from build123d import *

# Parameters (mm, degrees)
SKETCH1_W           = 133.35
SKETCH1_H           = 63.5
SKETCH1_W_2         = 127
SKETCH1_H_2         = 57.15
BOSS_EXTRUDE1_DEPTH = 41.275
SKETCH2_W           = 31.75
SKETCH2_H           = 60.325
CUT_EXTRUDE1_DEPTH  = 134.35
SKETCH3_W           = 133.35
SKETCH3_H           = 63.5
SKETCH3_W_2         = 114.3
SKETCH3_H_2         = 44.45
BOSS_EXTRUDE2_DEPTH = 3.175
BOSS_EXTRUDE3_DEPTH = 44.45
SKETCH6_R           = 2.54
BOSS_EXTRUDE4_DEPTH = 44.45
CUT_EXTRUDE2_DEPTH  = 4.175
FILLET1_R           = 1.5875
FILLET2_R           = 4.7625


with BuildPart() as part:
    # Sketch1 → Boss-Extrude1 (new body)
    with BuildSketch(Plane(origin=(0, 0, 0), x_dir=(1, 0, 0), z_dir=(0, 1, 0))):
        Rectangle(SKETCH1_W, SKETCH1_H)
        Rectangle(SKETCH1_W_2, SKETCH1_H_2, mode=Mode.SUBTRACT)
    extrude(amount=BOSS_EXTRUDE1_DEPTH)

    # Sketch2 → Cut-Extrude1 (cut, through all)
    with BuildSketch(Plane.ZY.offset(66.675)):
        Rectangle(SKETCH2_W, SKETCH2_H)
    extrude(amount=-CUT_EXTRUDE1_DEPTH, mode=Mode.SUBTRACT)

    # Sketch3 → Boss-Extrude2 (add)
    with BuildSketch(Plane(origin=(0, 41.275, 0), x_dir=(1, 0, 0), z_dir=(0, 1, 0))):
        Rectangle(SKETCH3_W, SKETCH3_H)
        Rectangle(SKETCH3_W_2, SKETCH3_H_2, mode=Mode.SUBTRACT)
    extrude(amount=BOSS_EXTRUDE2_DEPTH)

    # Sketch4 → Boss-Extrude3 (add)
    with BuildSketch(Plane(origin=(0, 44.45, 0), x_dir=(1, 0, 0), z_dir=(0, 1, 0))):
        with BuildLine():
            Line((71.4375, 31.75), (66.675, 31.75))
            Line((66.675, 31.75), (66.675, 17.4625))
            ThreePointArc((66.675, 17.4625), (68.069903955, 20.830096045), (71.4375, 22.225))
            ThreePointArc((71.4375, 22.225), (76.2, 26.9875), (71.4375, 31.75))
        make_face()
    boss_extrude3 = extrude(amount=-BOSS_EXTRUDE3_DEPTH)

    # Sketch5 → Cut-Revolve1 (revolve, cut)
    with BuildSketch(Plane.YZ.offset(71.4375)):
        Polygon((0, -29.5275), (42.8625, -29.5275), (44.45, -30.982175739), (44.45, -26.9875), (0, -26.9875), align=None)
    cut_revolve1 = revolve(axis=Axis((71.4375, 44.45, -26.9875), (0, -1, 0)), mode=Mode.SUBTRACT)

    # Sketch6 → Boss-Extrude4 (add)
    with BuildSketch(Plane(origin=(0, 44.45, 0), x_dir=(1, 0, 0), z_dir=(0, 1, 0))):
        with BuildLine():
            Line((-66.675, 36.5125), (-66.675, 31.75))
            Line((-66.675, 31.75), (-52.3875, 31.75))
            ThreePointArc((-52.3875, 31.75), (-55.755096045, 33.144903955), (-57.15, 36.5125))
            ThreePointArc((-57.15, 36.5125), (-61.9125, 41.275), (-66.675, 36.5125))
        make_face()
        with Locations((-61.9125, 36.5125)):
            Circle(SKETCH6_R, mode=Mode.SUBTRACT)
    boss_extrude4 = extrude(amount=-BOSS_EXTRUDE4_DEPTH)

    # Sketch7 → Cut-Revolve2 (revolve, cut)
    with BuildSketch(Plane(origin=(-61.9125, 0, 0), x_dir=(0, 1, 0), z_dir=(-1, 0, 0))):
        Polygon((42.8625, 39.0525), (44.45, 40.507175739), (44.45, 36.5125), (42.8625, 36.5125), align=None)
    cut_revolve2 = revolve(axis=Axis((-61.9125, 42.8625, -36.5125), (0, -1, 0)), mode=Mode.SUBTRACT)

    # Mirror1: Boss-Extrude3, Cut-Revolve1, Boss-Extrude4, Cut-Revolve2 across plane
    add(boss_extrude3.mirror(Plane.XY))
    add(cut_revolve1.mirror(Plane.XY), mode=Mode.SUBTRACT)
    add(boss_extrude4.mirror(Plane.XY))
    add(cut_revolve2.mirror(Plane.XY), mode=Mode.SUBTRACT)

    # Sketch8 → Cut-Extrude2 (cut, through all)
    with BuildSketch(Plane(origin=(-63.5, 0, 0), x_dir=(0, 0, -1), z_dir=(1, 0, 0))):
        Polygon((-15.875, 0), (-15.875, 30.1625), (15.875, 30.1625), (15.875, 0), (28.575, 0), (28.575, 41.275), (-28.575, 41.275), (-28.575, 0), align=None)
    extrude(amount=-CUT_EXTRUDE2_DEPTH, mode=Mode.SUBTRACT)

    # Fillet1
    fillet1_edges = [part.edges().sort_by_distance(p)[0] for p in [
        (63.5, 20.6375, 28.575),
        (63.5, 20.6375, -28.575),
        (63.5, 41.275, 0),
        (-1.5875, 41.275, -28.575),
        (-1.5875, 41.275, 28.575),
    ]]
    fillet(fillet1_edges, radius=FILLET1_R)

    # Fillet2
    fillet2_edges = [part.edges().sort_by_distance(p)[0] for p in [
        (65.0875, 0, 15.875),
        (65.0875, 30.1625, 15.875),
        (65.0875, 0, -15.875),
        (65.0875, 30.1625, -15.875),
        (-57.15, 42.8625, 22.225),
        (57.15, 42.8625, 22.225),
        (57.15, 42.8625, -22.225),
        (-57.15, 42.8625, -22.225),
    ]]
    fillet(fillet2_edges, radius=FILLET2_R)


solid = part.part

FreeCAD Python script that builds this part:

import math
import FreeCAD as App
import Part
import Sketcher
from FreeCAD import Vector
Q = App.Units.Quantity


def edges_at(feature, points):
    """Names of the edges that pass closest to the given points."""
    edges = feature.Shape.Edges
    near = lambda p: min(range(len(edges)), key=lambda i: edges[i].distToShape(Part.Vertex(*p))[0])
    return sorted({f"Edge{near(p) + 1}" for p in points})

doc = App.newDocument("Part")
params = doc.addObject("Spreadsheet::Sheet", "Params")
for row, (alias, value) in enumerate([
    ("sketch1_width", "5 in"),
    ("sketch1_height", "2.5 in"),
    ("sketch1_width2", "5.25 in"),
    ("sketch1_height2", "2.25 in"),
    ("pad1_length", "1.625 in"),
    ("sketch2_height", "1.25 in"),
    ("sketch2_width", "2.375 in"),
    ("sketch3_width", "4.5 in"),
    ("sketch3_height", "2.5 in"),
    ("sketch3_width2", "5.25 in"),
    ("sketch3_height2", "1.75 in"),
    ("pad2_length", "0.125 in"),
    ("sketch4_radius", "0.1875 in"),
    ("pad3_length", "1.75 in"),
    ("sketch5_height", "0.1 in"),
    ("sketch5_width", "1.75 in"),
    ("sketch5_width2", "1.6875 in"),
    ("groove_angle", "360 deg"),
    ("sketch6_diameter", "0.2 in"),
    ("sketch6_radius", "0.1875 in"),
    ("pad4_length", "1.75 in"),
    ("sketch7_height", "0.1 in"),
    ("sketch7_width", "0.0625 in"),
    ("groove2_angle", "360 deg"),
    ("sketch8_height", "0.5 in"),
    ("sketch8_height2", "1.25 in"),
    ("sketch8_width", "1.1875 in"),
    ("sketch8_width2", "1.625 in"),
    ("fillet_radius", "0.0625 in"),
    ("fillet2_radius", "0.1875 in"),
], start=1):
    params.set(f"A{row}", alias)
    params.set(f"B{row}", "=" + value)
    params.setAlias(f"B{row}", alias)

body = doc.addObject("PartDesign::Body", "Body")

sketch1 = body.newObject("Sketcher::SketchObject", "Sketch")
sketch1.AttachmentSupport = (doc.getObject("XZ_Plane"), [""])
sketch1.MapMode = "FlatFace"
sketch1.addGeometry([
    Part.LineSegment(Vector(-66.675, -31.75, 0), Vector(-66.675, 31.75, 0)),
    Part.LineSegment(Vector(-66.675, 31.75, 0), Vector(66.675, 31.75, 0)),
    Part.LineSegment(Vector(66.675, 31.75, 0), Vector(66.675, -31.75, 0)),
    Part.LineSegment(Vector(66.675, -31.75, 0), Vector(-66.675, -31.75, 0)),
    Part.LineSegment(Vector(63.5, 28.575, 0), Vector(-63.5, 28.575, 0)),
    Part.LineSegment(Vector(-63.5, 28.575, 0), Vector(-63.5, -28.575, 0)),
    Part.LineSegment(Vector(-63.5, -28.575, 0), Vector(63.5, -28.575, 0)),
    Part.LineSegment(Vector(63.5, -28.575, 0), Vector(63.5, 28.575, 0)),
], False)
sketch1.addConstraint([
    Sketcher.Constraint("Coincident", 0, 2, 1, 1),
    Sketcher.Constraint("Coincident", 1, 2, 2, 1),
    Sketcher.Constraint("Coincident", 2, 2, 3, 1),
    Sketcher.Constraint("Coincident", 3, 2, 0, 1),
    Sketcher.Constraint("Coincident", 4, 2, 5, 1),
    Sketcher.Constraint("Coincident", 5, 2, 6, 1),
    Sketcher.Constraint("Coincident", 6, 2, 7, 1),
    Sketcher.Constraint("Coincident", 7, 2, 4, 1),
    Sketcher.Constraint("Vertical", 0),
    Sketcher.Constraint("Horizontal", 1),
    Sketcher.Constraint("Vertical", 2),
    Sketcher.Constraint("Horizontal", 3),
    Sketcher.Constraint("Horizontal", 4),
    Sketcher.Constraint("Vertical", 5),
    Sketcher.Constraint("Horizontal", 6),
    Sketcher.Constraint("Vertical", 7),
    Sketcher.Constraint("Symmetric", 0, 2, 2, 2, -1, 1),
    Sketcher.Constraint("Symmetric", 4, 2, 6, 2, -1, 1),
    Sketcher.Constraint("DistanceX", 4, 2, 4, 1, Q("5 in")),
    Sketcher.Constraint("DistanceY", 0, 1, 0, 2, Q("2.5 in")),
    Sketcher.Constraint("DistanceX", 1, 1, 1, 2, Q("5.25 in")),
    Sketcher.Constraint("DistanceY", 5, 2, 5, 1, Q("2.25 in")),
])
sketch1.setExpression("Constraints[18]", "Params.sketch1_width")
sketch1.setExpression("Constraints[19]", "Params.sketch1_height")
sketch1.setExpression("Constraints[20]", "Params.sketch1_width2")
sketch1.setExpression("Constraints[21]", "Params.sketch1_height2")
pad1 = body.newObject("PartDesign::Pad", "Pad")
pad1.Profile = sketch1
pad1.setExpression("Length", "Params.pad1_length")
pad1.Reversed = True

sketch2 = body.newObject("Sketcher::SketchObject", "Sketch001")
sketch2.AttachmentSupport = (doc.getObject("YZ_Plane"), [""])
sketch2.MapMode = "FlatFace"
sketch2.AttachmentOffset = App.Placement(Vector(0, 0, -2.625 * 25.4), App.Rotation())
sketch2.addGeometry([
    Part.LineSegment(Vector(30.1625, -15.875, 0), Vector(-30.1625, -15.875, 0)),
    Part.LineSegment(Vector(-30.1625, -15.875, 0), Vector(-30.1625, 15.875, 0)),
    Part.LineSegment(Vector(-30.1625, 15.875, 0), Vector(30.1625, 15.875, 0)),
    Part.LineSegment(Vector(30.1625, 15.875, 0), Vector(30.1625, -15.875, 0)),
], False)
sketch2.addConstraint([
    Sketcher.Constraint("Coincident", 0, 2, 1, 1),
    Sketcher.Constraint("Coincident", 1, 2, 2, 1),
    Sketcher.Constraint("Coincident", 2, 2, 3, 1),
    Sketcher.Constraint("Coincident", 3, 2, 0, 1),
    Sketcher.Constraint("Horizontal", 0),
    Sketcher.Constraint("Vertical", 1),
    Sketcher.Constraint("Horizontal", 2),
    Sketcher.Constraint("Vertical", 3),
    Sketcher.Constraint("Symmetric", 0, 2, 2, 2, -1, 1),
    Sketcher.Constraint("DistanceY", 1, 1, 1, 2, Q("1.25 in")),
    Sketcher.Constraint("DistanceX", 0, 2, 0, 1, Q("2.375 in")),
])
sketch2.setExpression("Constraints[9]", "Params.sketch2_height")
sketch2.setExpression("Constraints[10]", "Params.sketch2_width")
pocket1 = body.newObject("PartDesign::Pocket", "Pocket")
pocket1.Profile = sketch2
pocket1.Type = "ThroughAll"
pocket1.Reversed = True

sketch3 = body.newObject("Sketcher::SketchObject", "Sketch002")
sketch3.AttachmentSupport = (doc.getObject("XZ_Plane"), [""])
sketch3.MapMode = "FlatFace"
sketch3.AttachmentOffset = App.Placement(Vector(0, 0, -1.625 * 25.4), App.Rotation())
sketch3.addGeometry([
    Part.LineSegment(Vector(-66.675, -31.75, 0), Vector(-66.675, 31.75, 0)),
    Part.LineSegment(Vector(-66.675, 31.75, 0), Vector(66.675, 31.75, 0)),
    Part.LineSegment(Vector(66.675, 31.75, 0), Vector(66.675, -31.75, 0)),
    Part.LineSegment(Vector(66.675, -31.75, 0), Vector(-66.675, -31.75, 0)),
    Part.LineSegment(Vector(57.15, 22.225, 0), Vector(-57.15, 22.225, 0)),
    Part.LineSegment(Vector(-57.15, 22.225, 0), Vector(-57.15, -22.225, 0)),
    Part.LineSegment(Vector(-57.15, -22.225, 0), Vector(57.15, -22.225, 0)),
    Part.LineSegment(Vector(57.15, -22.225, 0), Vector(57.15, 22.225, 0)),
], False)
sketch3.addConstraint([
    Sketcher.Constraint("Coincident", 0, 2, 1, 1),
    Sketcher.Constraint("Coincident", 1, 2, 2, 1),
    Sketcher.Constraint("Coincident", 2, 2, 3, 1),
    Sketcher.Constraint("Coincident", 3, 2, 0, 1),
    Sketcher.Constraint("Coincident", 4, 2, 5, 1),
    Sketcher.Constraint("Coincident", 5, 2, 6, 1),
    Sketcher.Constraint("Coincident", 6, 2, 7, 1),
    Sketcher.Constraint("Coincident", 7, 2, 4, 1),
    Sketcher.Constraint("Vertical", 0),
    Sketcher.Constraint("Horizontal", 1),
    Sketcher.Constraint("Vertical", 2),
    Sketcher.Constraint("Horizontal", 3),
    Sketcher.Constraint("Horizontal", 4),
    Sketcher.Constraint("Vertical", 5),
    Sketcher.Constraint("Horizontal", 6),
    Sketcher.Constraint("Vertical", 7),
    Sketcher.Constraint("Symmetric", 0, 2, 2, 2, -1, 1),
    Sketcher.Constraint("Symmetric", 4, 2, 6, 2, -1, 1),
    Sketcher.Constraint("DistanceX", 4, 2, 4, 1, Q("4.5 in")),
    Sketcher.Constraint("DistanceY", 0, 1, 0, 2, Q("2.5 in")),
    Sketcher.Constraint("DistanceX", 1, 1, 1, 2, Q("5.25 in")),
    Sketcher.Constraint("DistanceY", 5, 2, 5, 1, Q("1.75 in")),
])
sketch3.setExpression("Constraints[18]", "Params.sketch3_width")
sketch3.setExpression("Constraints[19]", "Params.sketch3_height")
sketch3.setExpression("Constraints[20]", "Params.sketch3_width2")
sketch3.setExpression("Constraints[21]", "Params.sketch3_height2")
pad2 = body.newObject("PartDesign::Pad", "Pad001")
pad2.Profile = sketch3
pad2.setExpression("Length", "Params.pad2_length")
pad2.Reversed = True

sketch4 = body.newObject("Sketcher::SketchObject", "Sketch003")
sketch4.AttachmentSupport = (doc.getObject("XZ_Plane"), [""])
sketch4.MapMode = "FlatFace"
sketch4.AttachmentOffset = App.Placement(Vector(0, 0, -1.75 * 25.4), App.Rotation())
sketch4.addGeometry([
    Part.LineSegment(Vector(71.4375, -31.75, 0), Vector(66.675, -31.75, 0)),
    Part.LineSegment(Vector(66.675, -31.75, 0), Vector(66.675, -17.4625, 0)),
    Part.ArcOfCircle(Part.Circle(Vector(71.4375, -17.4625, 0), Vector(0, 0, 1), 4.7625), math.radians(-180), math.radians(-90)),
    Part.ArcOfCircle(Part.Circle(Vector(71.4375, -26.9875, 0), Vector(0, 0, 1), 4.7625), math.radians(-90), math.radians(90)),
], False)
sketch4.addConstraint([
    Sketcher.Constraint("Coincident", 0, 2, 1, 1),
    Sketcher.Constraint("Tangent", 1, 2, 2, 1),
    Sketcher.Constraint("Tangent", 2, 2, 3, 2),
    Sketcher.Constraint("Tangent", 3, 1, 0, 1),
    Sketcher.Constraint("Horizontal", 0),
    Sketcher.Constraint("Vertical", 1),
    Sketcher.Constraint("Equal", 2, 3),
    Sketcher.Constraint("Vertical", 2, 3, 3, 3),
    Sketcher.Constraint("Radius", 2, Q("0.1875 in")),
    Sketcher.Constraint("DistanceY", 0, 2, -1, 1, Q("1.25 in")),
    Sketcher.Constraint("DistanceX", -1, 1, 2, 3, Q("2.8125 in")),
])
sketch4.setExpression("Constraints[8]", "Params.sketch4_radius")
pad3 = body.newObject("PartDesign::Pad", "Pad002")
pad3.Profile = sketch4
pad3.setExpression("Length", "Params.pad3_length")

sketch5 = body.newObject("Sketcher::SketchObject", "Sketch004")
sketch5.AttachmentSupport = (doc.getObject("YZ_Plane"), [""])
sketch5.MapMode = "FlatFace"
sketch5.AttachmentOffset = App.Placement(Vector(0, 0, 2.8125 * 25.4), App.Rotation())
sketch5.addGeometry([
    Part.LineSegment(Vector(0, -29.5275, 0), Vector(42.8625, -29.5275, 0)),
    Part.LineSegment(Vector(42.8625, -29.5275, 0), Vector(44.45, -30.982176, 0)),
    Part.LineSegment(Vector(44.45, -30.982176, 0), Vector(44.45, -26.9875, 0)),
    Part.LineSegment(Vector(44.45, -26.9875, 0), Vector(0, -26.9875, 0)),
    Part.LineSegment(Vector(0, -26.9875, 0), Vector(0, -29.5275, 0)),
], False)
sketch5.addGeometry(Part.LineSegment(Vector(44.45, -26.9875, 0), Vector(0, -26.9875, 0)), True)
sketch5.addConstraint([
    Sketcher.Constraint("Coincident", 0, 2, 1, 1),
    Sketcher.Constraint("Coincident", 1, 2, 2, 1),
    Sketcher.Constraint("Coincident", 2, 2, 3, 1),
    Sketcher.Constraint("Coincident", 3, 2, 4, 1),
    Sketcher.Constraint("Coincident", 4, 2, 0, 1),
    Sketcher.Constraint("Horizontal", 0),
    Sketcher.Constraint("Vertical", 2),
    Sketcher.Constraint("Horizontal", 3),
    Sketcher.Constraint("Vertical", 4),
    Sketcher.Constraint("Horizontal", 5),
    Sketcher.Constraint("Coincident", 5, 1, 2, 2),
    Sketcher.Constraint("PointOnObject", 3, 2, -2),
    Sketcher.Constraint("PointOnObject", 5, 2, -2),
    Sketcher.Constraint("DistanceY", 4, 2, 4, 1, Q("0.1 in")),
    Sketcher.Constraint("DistanceX", 3, 2, 3, 1, Q("1.75 in")),
    Sketcher.Constraint("Angle", 1, Q("-42.5 deg")),
    Sketcher.Constraint("DistanceX", 0, 1, 0, 2, Q("1.6875 in")),
    Sketcher.Constraint("DistanceY", 2, 2, -1, 1, Q("1.0625 in")),
])
sketch5.setExpression("Constraints[13]", "Params.sketch5_height")
sketch5.setExpression("Constraints[14]", "Params.sketch5_width")
sketch5.setExpression("Constraints[16]", "Params.sketch5_width2")
groove = body.newObject("PartDesign::Groove", "Groove")
groove.Profile = sketch5
groove.ReferenceAxis = (sketch5, ["Axis0"])
groove.setExpression("Angle", "Params.groove_angle")

sketch6 = body.newObject("Sketcher::SketchObject", "Sketch005")
sketch6.AttachmentSupport = (doc.getObject("XZ_Plane"), [""])
sketch6.MapMode = "FlatFace"
sketch6.AttachmentOffset = App.Placement(Vector(0, 0, -1.75 * 25.4), App.Rotation())
sketch6.addGeometry([
    Part.LineSegment(Vector(-66.675, -36.5125, 0), Vector(-66.675, -31.75, 0)),
    Part.LineSegment(Vector(-66.675, -31.75, 0), Vector(-52.3875, -31.75, 0)),
    Part.ArcOfCircle(Part.Circle(Vector(-52.3875, -36.5125, 0), Vector(0, 0, 1), 4.7625), math.radians(90), math.radians(180)),
    Part.ArcOfCircle(Part.Circle(Vector(-61.9125, -36.5125, 0), Vector(0, 0, 1), 4.7625), math.radians(180), math.radians(360)),
    Part.Circle(Vector(-61.9125, -36.5125, 0), Vector(0, 0, 1), 2.54),
], False)
sketch6.addConstraint([
    Sketcher.Constraint("Coincident", 0, 2, 1, 1),
    Sketcher.Constraint("Tangent", 1, 2, 2, 1),
    Sketcher.Constraint("Tangent", 2, 2, 3, 2),
    Sketcher.Constraint("Tangent", 3, 1, 0, 1),
    Sketcher.Constraint("Vertical", 0),
    Sketcher.Constraint("Horizontal", 1),
    Sketcher.Constraint("Coincident", 4, 3, 3, 3),
    Sketcher.Constraint("Equal", 2, 3),
    Sketcher.Constraint("Horizontal", 2, 3, 3, 3),
    Sketcher.Constraint("Diameter", 4, Q("0.2 in")),
    Sketcher.Constraint("Radius", 2, Q("0.1875 in")),
    Sketcher.Constraint("DistanceY", 0, 2, -1, 1, Q("1.25 in")),
    Sketcher.Constraint("DistanceX", 2, 2, -1, 1, Q("2.25 in")),
])
sketch6.setExpression("Constraints[9]", "Params.sketch6_diameter")
sketch6.setExpression("Constraints[10]", "Params.sketch6_radius")
pad4 = body.newObject("PartDesign::Pad", "Pad003")
pad4.Profile = sketch6
pad4.setExpression("Length", "Params.pad4_length")

sketch7 = body.newObject("Sketcher::SketchObject", "Sketch006")
sketch7.AttachmentSupport = (doc.getObject("YZ_Plane"), [""])
sketch7.MapMode = "FlatFace"
sketch7.AttachmentOffset = App.Placement(Vector(0, 0, -2.4375 * 25.4), App.Rotation())
sketch7.addGeometry([
    Part.LineSegment(Vector(44.45, -40.507176, 0), Vector(42.8625, -39.0525, 0)),
    Part.LineSegment(Vector(42.8625, -39.0525, 0), Vector(42.8625, -36.5125, 0)),
    Part.LineSegment(Vector(42.8625, -36.5125, 0), Vector(44.45, -36.5125, 0)),
    Part.LineSegment(Vector(44.45, -36.5125, 0), Vector(44.45, -40.507176, 0)),
], False)
sketch7.addGeometry(Part.LineSegment(Vector(44.45, -36.5125, 0), Vector(42.8625, -36.5125, 0)), True)
sketch7.addConstraint([
    Sketcher.Constraint("Coincident", 0, 2, 1, 1),
    Sketcher.Constraint("Coincident", 1, 2, 2, 1),
    Sketcher.Constraint("Coincident", 2, 2, 3, 1),
    Sketcher.Constraint("Coincident", 3, 2, 0, 1),
    Sketcher.Constraint("Vertical", 1),
    Sketcher.Constraint("Horizontal", 2),
    Sketcher.Constraint("Vertical", 3),
    Sketcher.Constraint("Horizontal", 4),
    Sketcher.Constraint("Coincident", 4, 1, 2, 2),
    Sketcher.Constraint("Vertical", 0, 2, 4, 2),
    Sketcher.Constraint("DistanceY", 1, 1, 1, 2, Q("0.1 in")),
    Sketcher.Constraint("Angle", 0, Q("137.5 deg")),
    Sketcher.Constraint("DistanceX", 2, 1, 2, 2, Q("0.0625 in")),
    Sketcher.Constraint("DistanceX", -1, 1, 2, 2, Q("1.75 in")),
    Sketcher.Constraint("DistanceY", 1, 2, -1, 1, Q("1.4375 in")),
])
sketch7.setExpression("Constraints[10]", "Params.sketch7_height")
sketch7.setExpression("Constraints[12]", "Params.sketch7_width")
groove2 = body.newObject("PartDesign::Groove", "Groove001")
groove2.Profile = sketch7
groove2.ReferenceAxis = (sketch7, ["Axis0"])
groove2.setExpression("Angle", "Params.groove2_angle")
doc.recompute()

mirrored = body.newObject("PartDesign::Mirrored", "Mirrored")
mirrored.Originals = [pad3, groove, pad4, groove2]
mirrored.MirrorPlane = (doc.getObject("XY_Plane"), [""])
body.Tip = mirrored

sketch8 = body.newObject("Sketcher::SketchObject", "Sketch007")
sketch8.AttachmentSupport = (doc.getObject("YZ_Plane"), [""])
sketch8.MapMode = "FlatFace"
sketch8.AttachmentOffset = App.Placement(Vector(0, 0, -2.5 * 25.4), App.Rotation())
sketch8.addGeometry([
    Part.LineSegment(Vector(0, 15.875, 0), Vector(30.1625, 15.875, 0)),
    Part.LineSegment(Vector(30.1625, 15.875, 0), Vector(30.1625, -15.875, 0)),
    Part.LineSegment(Vector(30.1625, -15.875, 0), Vector(0, -15.875, 0)),
    Part.LineSegment(Vector(0, -15.875, 0), Vector(0, -28.575, 0)),
    Part.LineSegment(Vector(0, -28.575, 0), Vector(41.275, -28.575, 0)),
    Part.LineSegment(Vector(41.275, -28.575, 0), Vector(41.275, 28.575, 0)),
    Part.LineSegment(Vector(41.275, 28.575, 0), Vector(0, 28.575, 0)),
    Part.LineSegment(Vector(0, 28.575, 0), Vector(0, 15.875, 0)),
], False)
sketch8.addConstraint([
    Sketcher.Constraint("Coincident", 0, 2, 1, 1),
    Sketcher.Constraint("Coincident", 1, 2, 2, 1),
    Sketcher.Constraint("Coincident", 2, 2, 3, 1),
    Sketcher.Constraint("Coincident", 3, 2, 4, 1),
    Sketcher.Constraint("Coincident", 4, 2, 5, 1),
    Sketcher.Constraint("Coincident", 5, 2, 6, 1),
    Sketcher.Constraint("Coincident", 6, 2, 7, 1),
    Sketcher.Constraint("Coincident", 7, 2, 0, 1),
    Sketcher.Constraint("Horizontal", 0),
    Sketcher.Constraint("Vertical", 1),
    Sketcher.Constraint("Horizontal", 2),
    Sketcher.Constraint("Vertical", 3),
    Sketcher.Constraint("Horizontal", 4),
    Sketcher.Constraint("Vertical", 5),
    Sketcher.Constraint("Horizontal", 6),
    Sketcher.Constraint("Vertical", 7),
    Sketcher.Constraint("Symmetric", 3, 2, 6, 2, -1, 1),
    Sketcher.Constraint("Symmetric", 2, 2, 7, 2, -1),
    Sketcher.Constraint("DistanceY", 3, 2, 3, 1, Q("0.5 in")),
    Sketcher.Constraint("DistanceY", 1, 2, 1, 1, Q("1.25 in")),
    Sketcher.Constraint("DistanceX", 0, 1, 0, 2, Q("1.1875 in")),
    Sketcher.Constraint("DistanceX", 4, 1, 4, 2, Q("1.625 in")),
])
sketch8.setExpression("Constraints[18]", "Params.sketch8_height")
sketch8.setExpression("Constraints[19]", "Params.sketch8_height2")
sketch8.setExpression("Constraints[20]", "Params.sketch8_width")
sketch8.setExpression("Constraints[21]", "Params.sketch8_width2")
pocket2 = body.newObject("PartDesign::Pocket", "Pocket001")
pocket2.Profile = sketch8
pocket2.Type = "ThroughAll"
doc.recompute()

fillet = body.newObject("PartDesign::Fillet", "Fillet")
fillet.Base = (pocket2, edges_at(pocket2, [
    (63.5, 20.637, 28.575),
    (63.5, 20.637, -28.575),
    (63.5, 41.275, 0),
    (-1.587, 41.275, -28.575),
    (-1.587, 41.275, 28.575),
]))
fillet.setExpression("Radius", "Params.fillet_radius")
doc.recompute()

fillet2 = body.newObject("PartDesign::Fillet", "Fillet001")
fillet2.Base = (fillet, edges_at(fillet, [
    (65.088, 0, 15.875),
    (65.088, 30.163, 15.875),
    (65.088, 0, -15.875),
    (65.088, 30.163, -15.875),
    (-57.15, 42.862, 22.225),
    (57.15, 42.862, 22.225),
    (57.15, 42.862, -22.225),
    (-57.15, 42.862, -22.225),
]))
fillet2.setExpression("Radius", "Params.fillet2_radius")

doc.recompute()
